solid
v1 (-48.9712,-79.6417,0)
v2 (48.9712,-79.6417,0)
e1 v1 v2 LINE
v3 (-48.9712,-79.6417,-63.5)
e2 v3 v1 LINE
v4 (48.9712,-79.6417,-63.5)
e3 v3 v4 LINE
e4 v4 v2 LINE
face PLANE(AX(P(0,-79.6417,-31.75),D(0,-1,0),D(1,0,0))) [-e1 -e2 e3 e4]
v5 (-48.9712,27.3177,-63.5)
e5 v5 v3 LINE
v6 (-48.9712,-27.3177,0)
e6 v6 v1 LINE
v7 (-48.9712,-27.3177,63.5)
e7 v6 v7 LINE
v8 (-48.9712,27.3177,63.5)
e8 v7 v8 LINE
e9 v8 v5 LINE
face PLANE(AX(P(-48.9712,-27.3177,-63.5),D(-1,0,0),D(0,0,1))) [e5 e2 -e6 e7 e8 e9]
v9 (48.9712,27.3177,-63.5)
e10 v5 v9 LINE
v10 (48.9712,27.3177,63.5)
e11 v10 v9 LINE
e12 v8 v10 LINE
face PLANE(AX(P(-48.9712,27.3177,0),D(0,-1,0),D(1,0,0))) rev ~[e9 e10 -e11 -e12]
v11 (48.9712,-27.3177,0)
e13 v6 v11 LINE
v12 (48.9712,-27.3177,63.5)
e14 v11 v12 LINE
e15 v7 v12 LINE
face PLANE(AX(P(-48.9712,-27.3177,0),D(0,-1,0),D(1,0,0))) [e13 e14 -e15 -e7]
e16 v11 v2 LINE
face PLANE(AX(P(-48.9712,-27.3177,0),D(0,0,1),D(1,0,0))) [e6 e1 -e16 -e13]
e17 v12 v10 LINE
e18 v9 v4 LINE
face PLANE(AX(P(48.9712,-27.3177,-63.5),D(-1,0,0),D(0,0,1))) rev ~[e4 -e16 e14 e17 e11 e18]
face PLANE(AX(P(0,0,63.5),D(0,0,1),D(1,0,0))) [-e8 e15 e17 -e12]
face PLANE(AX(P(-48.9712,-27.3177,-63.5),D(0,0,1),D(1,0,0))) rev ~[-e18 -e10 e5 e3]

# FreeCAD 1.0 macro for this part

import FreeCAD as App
import Part
import Sketcher
Q = App.Units.Quantity

doc = App.newDocument("Part")
body = doc.addObject("PartDesign::Body", "Body")

sketch1 = body.newObject("Sketcher::SketchObject", "Sketch")
sketch1.AttachmentSupport = (doc.getObject("XY_Plane"), [""])
sketch1.MapMode = "FlatFace"
sketch1.addGeometry([
    Part.LineSegment(App.Vector(-49, 27, 0), App.Vector(-49, -27, 0)),
    Part.LineSegment(App.Vector(-49, -27, 0), App.Vector(49, -27, 0)),
    Part.LineSegment(App.Vector(49, -27, 0), App.Vector(49, 27, 0)),
    Part.LineSegment(App.Vector(49, 27, 0), App.Vector(-49, 27, 0)),
], False)
sketch1.addConstraint([
    Sketcher.Constraint("Coincident", 0, 2, 1, 1),
    Sketcher.Constraint("Coincident", 1, 2, 2, 1),
    Sketcher.Constraint("Coincident", 2, 2, 3, 1),
    Sketcher.Constraint("Coincident", 3, 2, 0, 1),
    Sketcher.Constraint("Vertical", 0),
    Sketcher.Constraint("Horizontal", 1),
    Sketcher.Constraint("Vertical", 2),
    Sketcher.Constraint("Horizontal", 3),
    Sketcher.Constraint("Symmetric", 0, 2, 2, 2, -1, 1),
    Sketcher.Constraint("DistanceX", 1, 1, 1, 2, Q("3.856 in")),
    Sketcher.Constraint("DistanceY", 0, 2, 0, 1, Q("2.151 in")),
])
pad1 = body.newObject("PartDesign::Pad", "Pad")
pad1.Profile = sketch1
pad1.Length = Q("5 in")
pad1.Midplane = True

sketch2 = body.newObject("Sketcher::SketchObject", "Sketch001")
sketch2.AttachmentSupport = (doc.getObject("XZ_Plane"), [""])
sketch2.MapMode = "FlatFace"
sketch2.AttachmentOffset = App.Placement(App.Vector(0, 0, 1.0755 * 25.4), App.Rotation())
sketch2.addGeometry([
    Part.LineSegment(App.Vector(-49, 0, 0), App.Vector(-49, -64, 0)),
    Part.LineSegment(App.Vector(-49, -64, 0), App.Vector(49, -64, 0)),
    Part.LineSegment(App.Vector(49, -64, 0), App.Vector(49, 0, 0)),
    Part.LineSegment(App.Vector(49, 0, 0), App.Vector(-49, 0, 0)),
], False)
sketch2.addConstraint([
    Sketcher.Constraint("Coincident", 0, 2, 1, 1),
    Sketcher.Constraint("Coincident", 1, 2, 2, 1),
    Sketcher.Constraint("Coincident", 2, 2, 3, 1),
    Sketcher.Constraint("Coincident", 3, 2, 0, 1),
    Sketcher.Constraint("Vertical", 0),
    Sketcher.Constraint("Horizontal", 1),
    Sketcher.Constraint("Vertical", 2),
    Sketcher.Constraint("Horizontal", 3),
    Sketcher.Constraint("Symmetric", 2, 2, 3, 2, -1, 1),
    Sketcher.Constraint("DistanceY", 0, 2, 0, 1, Q("2.5 in")),
    Sketcher.Constraint("DistanceX", 1, 1, 1, 2, Q("3.856 in")),
])
pad2 = body.newObject("PartDesign::Pad", "Pad001")
pad2.Profile = sketch2
pad2.Length = Q("2.06 in")

doc.recompute()
